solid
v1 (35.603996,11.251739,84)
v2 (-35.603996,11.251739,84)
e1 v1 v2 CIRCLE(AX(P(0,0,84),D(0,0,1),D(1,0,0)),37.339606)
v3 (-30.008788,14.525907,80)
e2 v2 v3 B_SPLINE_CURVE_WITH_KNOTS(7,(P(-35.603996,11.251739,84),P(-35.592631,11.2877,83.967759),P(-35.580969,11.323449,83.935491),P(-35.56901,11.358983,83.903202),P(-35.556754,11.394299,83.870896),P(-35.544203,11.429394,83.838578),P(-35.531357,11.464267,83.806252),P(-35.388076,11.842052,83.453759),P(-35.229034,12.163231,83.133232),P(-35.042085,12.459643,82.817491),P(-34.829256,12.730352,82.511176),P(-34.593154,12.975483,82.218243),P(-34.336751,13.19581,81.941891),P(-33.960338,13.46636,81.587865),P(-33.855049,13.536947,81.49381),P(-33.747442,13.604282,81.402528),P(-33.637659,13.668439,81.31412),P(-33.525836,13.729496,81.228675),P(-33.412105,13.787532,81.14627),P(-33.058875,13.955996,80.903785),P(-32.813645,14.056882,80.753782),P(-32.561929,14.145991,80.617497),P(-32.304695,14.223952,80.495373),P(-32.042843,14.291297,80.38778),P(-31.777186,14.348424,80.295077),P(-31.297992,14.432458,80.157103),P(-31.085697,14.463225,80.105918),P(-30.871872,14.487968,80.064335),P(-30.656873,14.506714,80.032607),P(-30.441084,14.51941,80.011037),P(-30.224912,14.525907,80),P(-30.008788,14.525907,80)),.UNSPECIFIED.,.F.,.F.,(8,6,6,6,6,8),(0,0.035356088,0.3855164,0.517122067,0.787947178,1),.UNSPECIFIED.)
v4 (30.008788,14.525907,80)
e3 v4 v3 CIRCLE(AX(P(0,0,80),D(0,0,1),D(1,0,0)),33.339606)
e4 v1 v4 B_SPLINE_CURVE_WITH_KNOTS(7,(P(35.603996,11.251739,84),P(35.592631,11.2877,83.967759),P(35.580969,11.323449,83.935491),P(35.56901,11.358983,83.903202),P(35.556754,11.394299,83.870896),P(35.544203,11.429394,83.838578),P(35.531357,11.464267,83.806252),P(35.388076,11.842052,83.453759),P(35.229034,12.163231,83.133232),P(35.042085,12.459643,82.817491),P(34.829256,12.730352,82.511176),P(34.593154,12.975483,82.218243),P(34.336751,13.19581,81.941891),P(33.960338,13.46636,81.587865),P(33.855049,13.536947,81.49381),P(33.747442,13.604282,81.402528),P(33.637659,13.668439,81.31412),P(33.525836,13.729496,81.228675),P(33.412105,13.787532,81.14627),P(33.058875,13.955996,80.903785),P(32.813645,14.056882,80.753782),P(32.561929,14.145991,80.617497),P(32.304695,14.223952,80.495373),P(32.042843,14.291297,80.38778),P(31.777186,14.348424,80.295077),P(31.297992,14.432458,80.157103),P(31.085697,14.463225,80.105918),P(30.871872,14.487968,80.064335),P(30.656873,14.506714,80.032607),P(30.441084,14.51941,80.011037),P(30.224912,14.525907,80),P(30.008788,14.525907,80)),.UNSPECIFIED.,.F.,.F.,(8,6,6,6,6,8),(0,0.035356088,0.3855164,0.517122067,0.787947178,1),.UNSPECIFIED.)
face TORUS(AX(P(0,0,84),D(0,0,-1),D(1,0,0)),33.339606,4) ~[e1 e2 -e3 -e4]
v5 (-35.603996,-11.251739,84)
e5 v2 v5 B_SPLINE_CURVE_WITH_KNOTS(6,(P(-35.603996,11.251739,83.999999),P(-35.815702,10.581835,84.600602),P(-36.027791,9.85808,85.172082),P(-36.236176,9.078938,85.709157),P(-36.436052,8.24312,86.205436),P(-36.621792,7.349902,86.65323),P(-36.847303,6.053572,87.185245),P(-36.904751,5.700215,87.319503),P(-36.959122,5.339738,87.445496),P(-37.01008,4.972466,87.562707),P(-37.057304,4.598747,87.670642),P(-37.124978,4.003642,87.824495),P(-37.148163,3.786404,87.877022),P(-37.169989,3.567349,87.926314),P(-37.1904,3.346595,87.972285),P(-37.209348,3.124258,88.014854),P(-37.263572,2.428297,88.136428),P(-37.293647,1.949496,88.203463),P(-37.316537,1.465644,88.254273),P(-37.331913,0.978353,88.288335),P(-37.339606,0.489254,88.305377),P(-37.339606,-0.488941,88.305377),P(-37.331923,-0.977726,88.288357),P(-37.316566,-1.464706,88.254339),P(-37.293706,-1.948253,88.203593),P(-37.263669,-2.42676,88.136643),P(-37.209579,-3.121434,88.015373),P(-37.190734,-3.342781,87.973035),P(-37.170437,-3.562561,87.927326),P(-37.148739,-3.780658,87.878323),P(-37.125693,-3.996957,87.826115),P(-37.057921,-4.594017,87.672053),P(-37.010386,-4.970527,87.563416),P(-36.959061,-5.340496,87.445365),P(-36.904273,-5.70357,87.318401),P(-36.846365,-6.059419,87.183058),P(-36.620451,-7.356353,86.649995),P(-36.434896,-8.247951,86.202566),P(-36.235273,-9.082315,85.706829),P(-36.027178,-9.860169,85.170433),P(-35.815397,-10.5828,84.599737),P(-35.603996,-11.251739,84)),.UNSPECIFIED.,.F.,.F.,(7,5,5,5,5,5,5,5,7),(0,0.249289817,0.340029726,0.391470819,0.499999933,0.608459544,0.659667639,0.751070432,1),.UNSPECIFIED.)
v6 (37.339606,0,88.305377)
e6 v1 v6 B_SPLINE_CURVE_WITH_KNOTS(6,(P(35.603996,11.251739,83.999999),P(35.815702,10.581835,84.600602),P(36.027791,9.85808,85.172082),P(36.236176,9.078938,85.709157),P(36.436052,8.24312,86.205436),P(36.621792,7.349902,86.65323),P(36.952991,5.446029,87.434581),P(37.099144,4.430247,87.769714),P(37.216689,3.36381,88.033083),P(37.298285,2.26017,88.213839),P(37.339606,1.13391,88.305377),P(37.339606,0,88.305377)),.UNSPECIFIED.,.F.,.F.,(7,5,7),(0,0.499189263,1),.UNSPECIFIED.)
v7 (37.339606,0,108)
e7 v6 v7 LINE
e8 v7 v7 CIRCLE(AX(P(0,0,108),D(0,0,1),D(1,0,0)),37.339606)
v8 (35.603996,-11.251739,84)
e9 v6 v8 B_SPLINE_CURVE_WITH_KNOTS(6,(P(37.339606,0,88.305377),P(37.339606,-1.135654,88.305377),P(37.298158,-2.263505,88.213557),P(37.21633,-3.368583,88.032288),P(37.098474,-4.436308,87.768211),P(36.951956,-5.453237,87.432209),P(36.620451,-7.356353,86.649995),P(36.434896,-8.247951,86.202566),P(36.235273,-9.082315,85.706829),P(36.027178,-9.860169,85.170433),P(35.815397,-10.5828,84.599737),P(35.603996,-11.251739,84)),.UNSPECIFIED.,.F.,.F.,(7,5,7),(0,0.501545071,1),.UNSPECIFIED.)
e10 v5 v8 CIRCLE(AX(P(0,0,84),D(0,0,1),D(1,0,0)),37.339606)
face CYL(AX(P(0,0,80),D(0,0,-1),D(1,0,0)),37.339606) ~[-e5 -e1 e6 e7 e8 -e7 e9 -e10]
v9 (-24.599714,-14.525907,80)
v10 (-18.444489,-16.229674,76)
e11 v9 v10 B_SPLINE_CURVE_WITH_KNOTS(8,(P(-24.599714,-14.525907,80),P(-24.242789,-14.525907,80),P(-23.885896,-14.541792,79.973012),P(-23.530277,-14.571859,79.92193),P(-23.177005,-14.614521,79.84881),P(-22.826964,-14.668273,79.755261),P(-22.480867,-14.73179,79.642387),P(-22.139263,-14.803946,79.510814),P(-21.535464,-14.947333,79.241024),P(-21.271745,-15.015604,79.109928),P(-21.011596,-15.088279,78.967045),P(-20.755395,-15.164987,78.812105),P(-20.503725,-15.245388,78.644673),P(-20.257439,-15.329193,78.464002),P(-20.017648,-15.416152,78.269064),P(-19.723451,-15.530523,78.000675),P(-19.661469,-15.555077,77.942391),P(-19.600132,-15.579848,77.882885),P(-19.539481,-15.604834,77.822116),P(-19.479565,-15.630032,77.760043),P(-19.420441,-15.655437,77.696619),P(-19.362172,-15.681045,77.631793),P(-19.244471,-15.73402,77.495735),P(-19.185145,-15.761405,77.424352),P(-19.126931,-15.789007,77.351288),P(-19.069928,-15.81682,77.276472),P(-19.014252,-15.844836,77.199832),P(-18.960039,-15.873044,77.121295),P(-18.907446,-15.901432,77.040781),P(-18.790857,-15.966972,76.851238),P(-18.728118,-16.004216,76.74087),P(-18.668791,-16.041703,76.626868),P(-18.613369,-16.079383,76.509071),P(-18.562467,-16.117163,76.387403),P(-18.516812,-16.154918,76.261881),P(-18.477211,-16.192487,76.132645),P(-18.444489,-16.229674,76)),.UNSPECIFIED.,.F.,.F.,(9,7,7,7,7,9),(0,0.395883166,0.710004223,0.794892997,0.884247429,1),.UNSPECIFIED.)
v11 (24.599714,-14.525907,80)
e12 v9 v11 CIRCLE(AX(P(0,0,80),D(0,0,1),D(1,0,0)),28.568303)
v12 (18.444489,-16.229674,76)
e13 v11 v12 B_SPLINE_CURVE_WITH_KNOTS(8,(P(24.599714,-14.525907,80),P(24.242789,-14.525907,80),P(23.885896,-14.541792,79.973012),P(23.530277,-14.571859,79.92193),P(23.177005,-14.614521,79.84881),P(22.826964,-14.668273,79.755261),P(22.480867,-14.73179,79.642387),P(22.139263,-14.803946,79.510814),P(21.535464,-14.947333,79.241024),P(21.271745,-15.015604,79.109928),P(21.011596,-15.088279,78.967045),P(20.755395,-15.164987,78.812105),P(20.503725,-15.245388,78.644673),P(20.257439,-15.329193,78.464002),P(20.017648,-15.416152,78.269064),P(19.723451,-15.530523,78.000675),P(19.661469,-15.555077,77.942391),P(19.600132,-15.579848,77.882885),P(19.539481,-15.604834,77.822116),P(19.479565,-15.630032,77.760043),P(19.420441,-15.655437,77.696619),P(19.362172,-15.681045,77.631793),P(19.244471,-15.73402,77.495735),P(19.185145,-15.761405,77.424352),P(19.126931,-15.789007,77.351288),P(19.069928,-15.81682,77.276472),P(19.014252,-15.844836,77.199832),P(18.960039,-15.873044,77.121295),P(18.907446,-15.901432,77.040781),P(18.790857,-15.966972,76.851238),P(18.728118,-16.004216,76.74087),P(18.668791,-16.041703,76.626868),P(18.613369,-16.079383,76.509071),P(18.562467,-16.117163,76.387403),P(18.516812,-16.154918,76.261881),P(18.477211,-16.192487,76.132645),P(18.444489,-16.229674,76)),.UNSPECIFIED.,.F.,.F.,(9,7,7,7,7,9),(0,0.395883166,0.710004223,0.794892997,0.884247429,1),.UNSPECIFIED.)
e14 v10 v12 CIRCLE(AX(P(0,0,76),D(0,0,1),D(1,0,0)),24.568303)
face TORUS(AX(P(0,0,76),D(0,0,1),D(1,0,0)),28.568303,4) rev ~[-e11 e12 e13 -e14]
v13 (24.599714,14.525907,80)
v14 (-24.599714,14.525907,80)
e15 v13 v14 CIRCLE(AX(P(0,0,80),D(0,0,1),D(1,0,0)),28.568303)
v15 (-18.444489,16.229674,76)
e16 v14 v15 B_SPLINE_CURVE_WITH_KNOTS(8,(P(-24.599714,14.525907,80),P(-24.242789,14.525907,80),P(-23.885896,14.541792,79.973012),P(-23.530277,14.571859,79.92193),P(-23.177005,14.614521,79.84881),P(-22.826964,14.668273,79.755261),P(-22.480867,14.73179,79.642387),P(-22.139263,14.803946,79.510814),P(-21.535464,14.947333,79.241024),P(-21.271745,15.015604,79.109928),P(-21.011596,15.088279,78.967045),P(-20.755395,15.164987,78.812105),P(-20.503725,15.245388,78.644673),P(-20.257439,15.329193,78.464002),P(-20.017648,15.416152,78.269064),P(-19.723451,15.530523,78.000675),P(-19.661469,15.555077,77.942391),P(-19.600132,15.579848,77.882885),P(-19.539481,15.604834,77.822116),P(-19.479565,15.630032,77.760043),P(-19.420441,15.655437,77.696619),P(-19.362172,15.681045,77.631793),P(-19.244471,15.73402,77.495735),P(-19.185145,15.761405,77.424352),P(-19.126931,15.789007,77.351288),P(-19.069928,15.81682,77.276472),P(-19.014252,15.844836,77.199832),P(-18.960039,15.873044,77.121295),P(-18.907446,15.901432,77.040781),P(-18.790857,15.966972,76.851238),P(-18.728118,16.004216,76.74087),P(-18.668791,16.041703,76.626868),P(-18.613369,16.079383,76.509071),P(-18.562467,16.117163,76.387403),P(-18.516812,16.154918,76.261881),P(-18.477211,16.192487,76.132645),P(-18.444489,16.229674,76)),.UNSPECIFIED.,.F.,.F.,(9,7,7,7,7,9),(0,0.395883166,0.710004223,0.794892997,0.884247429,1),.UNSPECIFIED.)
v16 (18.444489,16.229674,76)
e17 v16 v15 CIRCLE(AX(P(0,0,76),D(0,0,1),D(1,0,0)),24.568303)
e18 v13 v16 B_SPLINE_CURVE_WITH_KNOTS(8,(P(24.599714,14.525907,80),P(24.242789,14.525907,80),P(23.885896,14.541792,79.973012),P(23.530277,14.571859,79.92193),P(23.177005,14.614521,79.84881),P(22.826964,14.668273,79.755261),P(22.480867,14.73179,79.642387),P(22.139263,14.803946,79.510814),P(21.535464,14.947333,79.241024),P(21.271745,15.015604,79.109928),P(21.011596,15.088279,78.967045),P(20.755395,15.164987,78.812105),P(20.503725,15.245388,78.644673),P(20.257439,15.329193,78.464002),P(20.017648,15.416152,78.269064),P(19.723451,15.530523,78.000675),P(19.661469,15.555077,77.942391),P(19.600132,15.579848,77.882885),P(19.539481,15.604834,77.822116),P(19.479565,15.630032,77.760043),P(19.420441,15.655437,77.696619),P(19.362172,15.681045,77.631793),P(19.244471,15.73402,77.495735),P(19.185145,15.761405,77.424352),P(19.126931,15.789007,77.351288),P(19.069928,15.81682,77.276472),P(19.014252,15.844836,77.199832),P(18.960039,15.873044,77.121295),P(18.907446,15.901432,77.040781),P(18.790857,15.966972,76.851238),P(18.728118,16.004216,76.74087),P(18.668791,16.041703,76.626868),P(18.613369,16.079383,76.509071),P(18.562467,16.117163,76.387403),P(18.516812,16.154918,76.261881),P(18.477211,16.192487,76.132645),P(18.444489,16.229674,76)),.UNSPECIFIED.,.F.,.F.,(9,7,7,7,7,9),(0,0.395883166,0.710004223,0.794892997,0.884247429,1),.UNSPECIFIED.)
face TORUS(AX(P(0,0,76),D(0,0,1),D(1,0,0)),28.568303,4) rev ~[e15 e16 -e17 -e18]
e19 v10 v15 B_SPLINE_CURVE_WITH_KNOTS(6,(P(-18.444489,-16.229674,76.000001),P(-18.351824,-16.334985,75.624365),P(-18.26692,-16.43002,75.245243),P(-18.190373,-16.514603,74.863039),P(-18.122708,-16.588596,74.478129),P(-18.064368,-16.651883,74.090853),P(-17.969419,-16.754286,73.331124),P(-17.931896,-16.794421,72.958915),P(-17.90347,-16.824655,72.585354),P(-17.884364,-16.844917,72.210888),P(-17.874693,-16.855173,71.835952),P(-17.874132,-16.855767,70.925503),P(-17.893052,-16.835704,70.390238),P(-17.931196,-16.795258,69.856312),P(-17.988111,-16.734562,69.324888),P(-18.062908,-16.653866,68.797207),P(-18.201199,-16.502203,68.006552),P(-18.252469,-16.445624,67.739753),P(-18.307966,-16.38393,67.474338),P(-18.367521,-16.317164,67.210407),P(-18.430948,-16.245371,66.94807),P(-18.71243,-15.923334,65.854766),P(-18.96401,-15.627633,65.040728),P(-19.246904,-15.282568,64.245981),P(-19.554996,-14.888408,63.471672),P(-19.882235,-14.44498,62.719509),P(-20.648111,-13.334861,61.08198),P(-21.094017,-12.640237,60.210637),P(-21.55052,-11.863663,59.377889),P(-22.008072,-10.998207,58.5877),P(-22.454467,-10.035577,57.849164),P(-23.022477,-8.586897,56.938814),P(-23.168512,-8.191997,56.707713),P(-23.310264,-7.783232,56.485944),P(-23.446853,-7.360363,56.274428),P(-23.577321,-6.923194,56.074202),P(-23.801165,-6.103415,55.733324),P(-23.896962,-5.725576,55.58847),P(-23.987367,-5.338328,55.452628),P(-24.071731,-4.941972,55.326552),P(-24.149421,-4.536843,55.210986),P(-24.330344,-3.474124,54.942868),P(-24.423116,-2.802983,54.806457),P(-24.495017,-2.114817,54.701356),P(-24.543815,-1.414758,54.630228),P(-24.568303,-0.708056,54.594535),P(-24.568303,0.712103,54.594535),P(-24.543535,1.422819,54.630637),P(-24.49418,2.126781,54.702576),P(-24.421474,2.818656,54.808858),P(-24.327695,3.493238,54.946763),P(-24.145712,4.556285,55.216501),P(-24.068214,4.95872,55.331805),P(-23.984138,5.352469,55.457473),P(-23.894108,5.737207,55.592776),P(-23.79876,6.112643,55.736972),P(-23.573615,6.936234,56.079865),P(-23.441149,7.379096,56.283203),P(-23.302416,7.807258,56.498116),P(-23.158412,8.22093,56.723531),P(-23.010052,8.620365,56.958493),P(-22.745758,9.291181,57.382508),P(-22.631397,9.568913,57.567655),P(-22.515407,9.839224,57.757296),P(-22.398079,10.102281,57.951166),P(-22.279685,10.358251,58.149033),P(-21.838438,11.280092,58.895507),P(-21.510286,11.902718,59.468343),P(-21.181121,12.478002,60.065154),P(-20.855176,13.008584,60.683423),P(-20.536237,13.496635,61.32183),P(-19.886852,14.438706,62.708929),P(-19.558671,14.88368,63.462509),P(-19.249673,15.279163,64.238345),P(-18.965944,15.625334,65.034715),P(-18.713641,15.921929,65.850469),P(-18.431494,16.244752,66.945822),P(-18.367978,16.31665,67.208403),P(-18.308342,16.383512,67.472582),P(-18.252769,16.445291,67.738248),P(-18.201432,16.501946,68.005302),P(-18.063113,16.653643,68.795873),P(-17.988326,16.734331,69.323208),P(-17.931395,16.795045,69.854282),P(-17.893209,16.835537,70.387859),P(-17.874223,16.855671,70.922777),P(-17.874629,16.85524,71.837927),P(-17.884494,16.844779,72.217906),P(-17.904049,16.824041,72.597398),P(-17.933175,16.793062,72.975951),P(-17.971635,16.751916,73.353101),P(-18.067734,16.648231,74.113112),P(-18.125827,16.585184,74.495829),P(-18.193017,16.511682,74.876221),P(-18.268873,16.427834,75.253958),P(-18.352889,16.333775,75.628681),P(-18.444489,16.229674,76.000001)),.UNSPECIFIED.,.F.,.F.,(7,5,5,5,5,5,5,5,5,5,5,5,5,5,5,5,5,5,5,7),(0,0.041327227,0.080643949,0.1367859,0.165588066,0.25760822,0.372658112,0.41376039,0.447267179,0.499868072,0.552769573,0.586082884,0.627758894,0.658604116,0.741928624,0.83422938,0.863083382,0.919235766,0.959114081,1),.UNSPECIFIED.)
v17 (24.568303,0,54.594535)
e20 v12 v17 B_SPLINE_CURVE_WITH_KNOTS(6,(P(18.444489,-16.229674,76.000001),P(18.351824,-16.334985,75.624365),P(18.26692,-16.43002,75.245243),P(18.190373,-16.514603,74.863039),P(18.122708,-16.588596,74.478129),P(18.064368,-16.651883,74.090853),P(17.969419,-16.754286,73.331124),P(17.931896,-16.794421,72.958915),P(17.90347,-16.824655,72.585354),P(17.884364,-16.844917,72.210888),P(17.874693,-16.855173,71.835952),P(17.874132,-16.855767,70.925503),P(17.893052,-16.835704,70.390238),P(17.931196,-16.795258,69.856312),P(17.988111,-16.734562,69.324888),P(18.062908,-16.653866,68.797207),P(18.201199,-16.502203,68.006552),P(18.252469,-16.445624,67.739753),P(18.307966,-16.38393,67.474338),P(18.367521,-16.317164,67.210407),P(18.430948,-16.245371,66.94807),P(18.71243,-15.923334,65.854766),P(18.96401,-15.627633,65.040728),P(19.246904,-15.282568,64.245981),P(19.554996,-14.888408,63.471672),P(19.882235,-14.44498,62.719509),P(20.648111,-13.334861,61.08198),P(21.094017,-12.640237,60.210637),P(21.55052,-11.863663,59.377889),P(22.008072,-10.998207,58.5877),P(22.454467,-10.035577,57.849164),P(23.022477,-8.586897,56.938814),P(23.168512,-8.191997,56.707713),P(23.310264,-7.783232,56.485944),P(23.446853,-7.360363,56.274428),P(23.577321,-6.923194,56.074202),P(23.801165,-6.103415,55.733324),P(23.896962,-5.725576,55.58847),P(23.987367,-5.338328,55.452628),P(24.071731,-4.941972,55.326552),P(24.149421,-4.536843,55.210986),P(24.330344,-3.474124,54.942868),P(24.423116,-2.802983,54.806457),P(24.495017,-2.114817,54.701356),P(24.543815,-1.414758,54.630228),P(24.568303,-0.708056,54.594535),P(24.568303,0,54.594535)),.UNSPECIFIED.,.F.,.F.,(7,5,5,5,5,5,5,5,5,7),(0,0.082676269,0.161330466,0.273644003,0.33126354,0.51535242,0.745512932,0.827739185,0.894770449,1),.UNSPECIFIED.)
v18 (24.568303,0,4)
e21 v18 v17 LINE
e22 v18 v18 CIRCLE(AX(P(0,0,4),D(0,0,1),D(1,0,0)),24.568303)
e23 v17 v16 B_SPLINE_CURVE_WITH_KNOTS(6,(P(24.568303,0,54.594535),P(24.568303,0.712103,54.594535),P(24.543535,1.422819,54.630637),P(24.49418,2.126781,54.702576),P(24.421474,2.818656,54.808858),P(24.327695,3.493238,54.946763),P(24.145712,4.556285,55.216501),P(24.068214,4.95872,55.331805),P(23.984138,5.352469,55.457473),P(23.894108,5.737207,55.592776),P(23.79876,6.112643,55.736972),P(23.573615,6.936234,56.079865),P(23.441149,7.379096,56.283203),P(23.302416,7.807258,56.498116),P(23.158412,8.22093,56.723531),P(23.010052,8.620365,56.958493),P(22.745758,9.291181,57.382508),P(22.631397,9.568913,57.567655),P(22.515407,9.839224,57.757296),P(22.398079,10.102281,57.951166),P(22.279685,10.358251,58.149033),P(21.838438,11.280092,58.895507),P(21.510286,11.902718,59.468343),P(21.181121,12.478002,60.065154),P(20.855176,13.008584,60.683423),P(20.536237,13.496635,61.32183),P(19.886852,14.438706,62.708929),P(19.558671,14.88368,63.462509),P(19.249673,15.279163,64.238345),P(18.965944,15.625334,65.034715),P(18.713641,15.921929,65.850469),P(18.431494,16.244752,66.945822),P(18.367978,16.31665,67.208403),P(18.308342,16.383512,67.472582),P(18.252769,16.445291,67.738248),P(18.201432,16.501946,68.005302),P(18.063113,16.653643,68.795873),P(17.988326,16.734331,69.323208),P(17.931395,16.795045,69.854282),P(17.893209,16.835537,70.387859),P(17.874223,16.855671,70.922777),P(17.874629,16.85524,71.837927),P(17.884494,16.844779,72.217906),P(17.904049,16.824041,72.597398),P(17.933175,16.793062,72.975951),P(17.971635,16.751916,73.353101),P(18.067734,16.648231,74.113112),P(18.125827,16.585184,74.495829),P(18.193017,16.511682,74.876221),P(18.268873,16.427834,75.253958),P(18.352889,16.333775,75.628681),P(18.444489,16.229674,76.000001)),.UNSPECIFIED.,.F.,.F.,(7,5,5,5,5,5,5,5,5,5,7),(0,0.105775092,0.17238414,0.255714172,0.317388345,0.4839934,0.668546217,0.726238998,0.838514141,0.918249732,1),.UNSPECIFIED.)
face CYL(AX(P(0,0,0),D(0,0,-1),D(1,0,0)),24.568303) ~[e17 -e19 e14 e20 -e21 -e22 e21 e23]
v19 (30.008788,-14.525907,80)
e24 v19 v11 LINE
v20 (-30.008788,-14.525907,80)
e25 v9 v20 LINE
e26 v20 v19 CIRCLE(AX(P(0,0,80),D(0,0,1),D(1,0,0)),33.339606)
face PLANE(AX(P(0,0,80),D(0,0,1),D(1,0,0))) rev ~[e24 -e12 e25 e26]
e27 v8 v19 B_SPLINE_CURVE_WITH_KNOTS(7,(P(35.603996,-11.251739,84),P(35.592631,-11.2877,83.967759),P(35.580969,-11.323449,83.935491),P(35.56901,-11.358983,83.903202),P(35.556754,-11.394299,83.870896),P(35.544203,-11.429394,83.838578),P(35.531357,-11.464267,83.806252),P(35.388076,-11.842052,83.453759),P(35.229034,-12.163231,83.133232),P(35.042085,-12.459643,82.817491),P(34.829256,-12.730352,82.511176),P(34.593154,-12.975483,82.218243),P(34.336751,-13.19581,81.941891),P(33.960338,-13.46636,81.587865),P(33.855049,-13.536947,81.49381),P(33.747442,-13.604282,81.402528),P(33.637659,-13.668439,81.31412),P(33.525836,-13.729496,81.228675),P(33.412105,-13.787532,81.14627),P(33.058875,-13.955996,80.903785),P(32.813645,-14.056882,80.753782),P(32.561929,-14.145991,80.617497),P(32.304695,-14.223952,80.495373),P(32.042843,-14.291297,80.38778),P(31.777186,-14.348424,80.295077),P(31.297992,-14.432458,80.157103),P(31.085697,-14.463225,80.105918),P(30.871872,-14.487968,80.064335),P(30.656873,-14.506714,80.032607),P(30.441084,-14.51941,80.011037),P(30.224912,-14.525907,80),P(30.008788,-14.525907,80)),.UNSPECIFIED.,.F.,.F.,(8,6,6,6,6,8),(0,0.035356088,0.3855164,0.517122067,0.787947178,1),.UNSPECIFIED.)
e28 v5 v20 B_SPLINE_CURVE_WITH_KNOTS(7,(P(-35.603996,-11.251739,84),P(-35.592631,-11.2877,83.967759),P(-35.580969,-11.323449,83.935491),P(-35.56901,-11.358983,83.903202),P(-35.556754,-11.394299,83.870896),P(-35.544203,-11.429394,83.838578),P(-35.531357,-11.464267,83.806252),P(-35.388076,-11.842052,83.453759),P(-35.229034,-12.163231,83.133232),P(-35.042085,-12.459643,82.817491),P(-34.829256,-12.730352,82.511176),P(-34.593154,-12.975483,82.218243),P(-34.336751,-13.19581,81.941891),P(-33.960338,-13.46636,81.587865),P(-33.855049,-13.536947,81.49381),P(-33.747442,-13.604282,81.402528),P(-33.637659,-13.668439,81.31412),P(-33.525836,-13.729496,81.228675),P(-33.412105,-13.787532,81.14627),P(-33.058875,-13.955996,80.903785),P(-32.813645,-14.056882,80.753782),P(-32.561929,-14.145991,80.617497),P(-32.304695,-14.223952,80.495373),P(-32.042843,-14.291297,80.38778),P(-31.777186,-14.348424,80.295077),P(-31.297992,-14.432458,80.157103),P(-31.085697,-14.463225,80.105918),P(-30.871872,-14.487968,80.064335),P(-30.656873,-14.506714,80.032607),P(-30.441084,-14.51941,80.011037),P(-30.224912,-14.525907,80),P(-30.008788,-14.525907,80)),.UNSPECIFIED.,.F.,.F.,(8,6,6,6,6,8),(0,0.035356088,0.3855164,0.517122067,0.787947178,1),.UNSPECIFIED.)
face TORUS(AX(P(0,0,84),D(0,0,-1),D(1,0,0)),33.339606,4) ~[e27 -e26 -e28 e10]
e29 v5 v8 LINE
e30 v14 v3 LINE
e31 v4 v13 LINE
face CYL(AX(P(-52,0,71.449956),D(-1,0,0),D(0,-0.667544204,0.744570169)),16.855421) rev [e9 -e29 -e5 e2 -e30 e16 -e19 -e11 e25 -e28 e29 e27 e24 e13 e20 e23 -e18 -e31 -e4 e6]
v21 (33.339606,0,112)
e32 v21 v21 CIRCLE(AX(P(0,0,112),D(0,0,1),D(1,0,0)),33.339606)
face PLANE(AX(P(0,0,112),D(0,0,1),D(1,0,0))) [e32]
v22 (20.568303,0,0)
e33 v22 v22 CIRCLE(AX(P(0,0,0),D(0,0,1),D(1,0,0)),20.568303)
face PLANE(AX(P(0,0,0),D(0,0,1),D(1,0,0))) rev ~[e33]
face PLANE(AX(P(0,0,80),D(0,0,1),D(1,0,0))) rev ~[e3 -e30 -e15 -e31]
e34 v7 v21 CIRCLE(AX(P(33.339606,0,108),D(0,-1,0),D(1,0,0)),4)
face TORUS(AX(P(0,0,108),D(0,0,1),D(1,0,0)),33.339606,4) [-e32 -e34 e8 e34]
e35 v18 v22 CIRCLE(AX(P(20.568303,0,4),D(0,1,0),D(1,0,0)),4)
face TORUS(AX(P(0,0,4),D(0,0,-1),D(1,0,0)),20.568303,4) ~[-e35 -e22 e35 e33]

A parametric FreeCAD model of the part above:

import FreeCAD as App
import Part
import Sketcher
from FreeCAD import Vector


def edges_at(feature, points):
    """Names of the edges that pass closest to the given points."""
    edges = feature.Shape.Edges
    near = lambda p: min(range(len(edges)), key=lambda i: edges[i].distToShape(Part.Vertex(*p))[0])
    return sorted({f"Edge{near(p) + 1}" for p in points})

doc = App.newDocument("Part")
body = doc.addObject("PartDesign::Body", "Body")

# Sketch on XY plane
sketch1 = body.newObject("Sketcher::SketchObject", "Sketch")
sketch1.AttachmentSupport = (doc.getObject("XY_Plane"), [""])
sketch1.MapMode = "FlatFace"
sketch1.addGeometry(Part.Circle(Vector(0, 0, 0), Vector(0, 0, 1), 25), False)
sketch1.addConstraint([
    Sketcher.Constraint("Coincident", 0, 3, -1, 1),
    Sketcher.Constraint("Diameter", 0, 49.136605),
])
pad1 = body.newObject("PartDesign::Pad", "Pad")
pad1.Profile = sketch1
pad1.Length = 80

# Sketch on XY plane
sketch2 = body.newObject("Sketcher::SketchObject", "Sketch001")
sketch2.AttachmentSupport = (doc.getObject("XY_Plane"), [""])
sketch2.MapMode = "FlatFace"
sketch2.AttachmentOffset = App.Placement(Vector(0, 0, 80), App.Rotation())
sketch2.addGeometry(Part.Circle(Vector(0, 0, 0), Vector(0, 0, 1), 37), False)
sketch2.addConstraint([
    Sketcher.Constraint("Coincident", 0, 3, -1, 1),
    Sketcher.Constraint("Diameter", 0, 74.679212),
])
pad2 = body.newObject("PartDesign::Pad", "Pad001")
pad2.Profile = sketch2
pad2.Length = 32
doc.recompute()

fillet = body.newObject("PartDesign::Fillet", "Fillet")
fillet.Base = (pad2, edges_at(pad2, [
    (-24.568, 0, 0),
    (-24.568, 0, 80),
    (-37.34, 0, 80),
    (-37.34, 0, 112),
]))
fillet.Radius = 4

# Sketch on YZ plane
sketch3 = body.newObject("Sketcher::SketchObject", "Sketch002")
sketch3.AttachmentSupport = (doc.getObject("YZ_Plane"), [""])
sketch3.MapMode = "FlatFace"
sketch3.AttachmentOffset = App.Placement(Vector(0, 0, 25), App.Rotation())
sketch3.addGeometry(Part.Circle(Vector(0, 71, 0), Vector(0, 0, 1), 17), False)
sketch3.addConstraint([
    Sketcher.Constraint("PointOnObject", 0, 3, -2),
    Sketcher.Constraint("Diameter", 0, 33.710842),
    Sketcher.Constraint("DistanceY", -1, 1, 0, 3, 71.449956),
])
pocket1 = body.newObject("PartDesign::Pocket", "Pocket")
pocket1.Profile = sketch3
pocket1.Type = "ThroughAll"
pocket1.Midplane = True

doc.recompute()
